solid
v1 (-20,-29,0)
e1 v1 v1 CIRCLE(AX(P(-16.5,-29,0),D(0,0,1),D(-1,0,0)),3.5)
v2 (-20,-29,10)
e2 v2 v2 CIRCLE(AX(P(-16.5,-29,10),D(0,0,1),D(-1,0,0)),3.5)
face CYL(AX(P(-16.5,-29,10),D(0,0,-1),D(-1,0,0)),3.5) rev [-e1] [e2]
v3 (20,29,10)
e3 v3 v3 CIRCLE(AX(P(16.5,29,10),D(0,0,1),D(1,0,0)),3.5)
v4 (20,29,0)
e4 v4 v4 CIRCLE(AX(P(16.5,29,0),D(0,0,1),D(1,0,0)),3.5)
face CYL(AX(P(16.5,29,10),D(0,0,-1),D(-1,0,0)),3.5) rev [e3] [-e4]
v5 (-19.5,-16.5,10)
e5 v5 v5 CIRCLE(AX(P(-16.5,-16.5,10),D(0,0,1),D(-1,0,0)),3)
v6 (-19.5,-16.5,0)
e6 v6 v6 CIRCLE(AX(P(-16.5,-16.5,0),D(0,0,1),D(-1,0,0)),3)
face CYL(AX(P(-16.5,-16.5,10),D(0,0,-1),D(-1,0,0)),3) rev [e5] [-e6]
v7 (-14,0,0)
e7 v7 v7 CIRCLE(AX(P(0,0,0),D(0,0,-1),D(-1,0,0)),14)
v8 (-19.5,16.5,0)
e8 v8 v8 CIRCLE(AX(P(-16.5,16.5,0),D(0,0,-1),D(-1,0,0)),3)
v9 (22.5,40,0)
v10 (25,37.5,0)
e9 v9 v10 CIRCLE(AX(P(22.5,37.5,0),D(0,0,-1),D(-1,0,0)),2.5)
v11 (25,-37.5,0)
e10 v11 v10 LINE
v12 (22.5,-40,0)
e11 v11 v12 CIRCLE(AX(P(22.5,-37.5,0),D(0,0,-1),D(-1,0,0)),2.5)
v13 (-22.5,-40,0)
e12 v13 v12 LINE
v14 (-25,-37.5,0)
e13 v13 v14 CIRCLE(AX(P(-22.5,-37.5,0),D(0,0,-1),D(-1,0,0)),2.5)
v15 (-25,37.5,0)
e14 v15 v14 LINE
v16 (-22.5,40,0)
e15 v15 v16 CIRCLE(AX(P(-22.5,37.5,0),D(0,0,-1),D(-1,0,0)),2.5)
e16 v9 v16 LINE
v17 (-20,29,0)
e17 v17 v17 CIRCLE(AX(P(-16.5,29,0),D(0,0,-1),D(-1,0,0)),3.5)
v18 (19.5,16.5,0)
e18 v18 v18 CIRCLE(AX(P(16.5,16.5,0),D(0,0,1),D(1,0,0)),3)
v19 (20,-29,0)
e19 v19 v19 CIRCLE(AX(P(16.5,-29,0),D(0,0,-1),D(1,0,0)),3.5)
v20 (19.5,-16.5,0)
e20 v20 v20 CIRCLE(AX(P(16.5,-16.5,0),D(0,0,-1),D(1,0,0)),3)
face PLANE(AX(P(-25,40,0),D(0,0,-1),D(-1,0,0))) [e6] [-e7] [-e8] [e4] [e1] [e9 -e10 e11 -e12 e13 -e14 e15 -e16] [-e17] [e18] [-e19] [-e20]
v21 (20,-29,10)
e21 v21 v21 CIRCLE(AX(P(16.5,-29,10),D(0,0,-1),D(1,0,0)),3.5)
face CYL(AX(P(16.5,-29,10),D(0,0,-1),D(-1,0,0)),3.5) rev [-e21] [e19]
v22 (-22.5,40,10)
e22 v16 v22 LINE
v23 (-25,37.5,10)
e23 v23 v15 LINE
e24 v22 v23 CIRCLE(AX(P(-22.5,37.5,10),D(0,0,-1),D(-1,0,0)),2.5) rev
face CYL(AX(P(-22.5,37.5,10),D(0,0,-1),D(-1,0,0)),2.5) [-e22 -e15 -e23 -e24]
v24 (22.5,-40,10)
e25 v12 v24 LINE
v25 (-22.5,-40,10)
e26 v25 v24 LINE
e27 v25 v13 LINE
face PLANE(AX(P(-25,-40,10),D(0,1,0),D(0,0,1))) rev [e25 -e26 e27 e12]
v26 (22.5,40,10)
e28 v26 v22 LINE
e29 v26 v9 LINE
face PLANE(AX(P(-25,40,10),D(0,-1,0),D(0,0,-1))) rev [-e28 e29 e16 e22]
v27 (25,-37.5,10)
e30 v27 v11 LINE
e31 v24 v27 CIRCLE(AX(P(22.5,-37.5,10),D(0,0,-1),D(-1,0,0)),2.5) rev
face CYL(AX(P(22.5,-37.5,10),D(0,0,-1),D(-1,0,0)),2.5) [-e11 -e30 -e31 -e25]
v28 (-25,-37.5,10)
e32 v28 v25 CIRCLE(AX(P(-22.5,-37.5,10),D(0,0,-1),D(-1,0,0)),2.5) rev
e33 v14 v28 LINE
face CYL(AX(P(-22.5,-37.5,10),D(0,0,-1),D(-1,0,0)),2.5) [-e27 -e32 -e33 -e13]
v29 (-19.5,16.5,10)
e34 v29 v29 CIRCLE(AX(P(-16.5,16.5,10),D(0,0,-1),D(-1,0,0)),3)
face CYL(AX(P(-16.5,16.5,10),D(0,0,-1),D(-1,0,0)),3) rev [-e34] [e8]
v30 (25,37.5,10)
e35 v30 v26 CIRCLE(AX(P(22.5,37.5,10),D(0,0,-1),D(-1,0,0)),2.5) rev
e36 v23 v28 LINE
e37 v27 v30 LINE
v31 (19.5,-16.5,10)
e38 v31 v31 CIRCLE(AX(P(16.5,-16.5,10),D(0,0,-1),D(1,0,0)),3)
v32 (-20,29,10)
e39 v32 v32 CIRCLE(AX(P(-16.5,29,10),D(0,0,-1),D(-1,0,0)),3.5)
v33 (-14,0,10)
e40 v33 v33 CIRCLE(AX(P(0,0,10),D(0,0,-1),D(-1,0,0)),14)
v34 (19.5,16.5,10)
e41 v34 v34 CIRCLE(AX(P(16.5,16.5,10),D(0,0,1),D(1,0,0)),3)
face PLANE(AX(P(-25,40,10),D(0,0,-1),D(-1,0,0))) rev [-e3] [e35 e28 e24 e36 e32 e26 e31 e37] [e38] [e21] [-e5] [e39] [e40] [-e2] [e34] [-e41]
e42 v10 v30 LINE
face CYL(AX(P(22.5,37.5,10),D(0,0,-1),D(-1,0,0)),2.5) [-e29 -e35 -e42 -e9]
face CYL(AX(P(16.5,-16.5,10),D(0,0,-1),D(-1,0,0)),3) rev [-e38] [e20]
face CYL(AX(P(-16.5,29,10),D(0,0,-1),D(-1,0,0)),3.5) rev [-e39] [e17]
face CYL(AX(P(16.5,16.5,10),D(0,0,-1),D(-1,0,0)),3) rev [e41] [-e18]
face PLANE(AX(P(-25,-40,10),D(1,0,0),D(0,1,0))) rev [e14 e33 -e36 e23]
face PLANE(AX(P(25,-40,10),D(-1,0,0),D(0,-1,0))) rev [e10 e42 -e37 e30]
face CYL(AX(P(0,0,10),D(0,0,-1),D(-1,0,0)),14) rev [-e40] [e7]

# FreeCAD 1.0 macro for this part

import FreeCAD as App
import Part
import Sketcher
from FreeCAD import Vector


def edges_at(feature, points):
    """Names of the edges that pass closest to the given points."""
    edges = feature.Shape.Edges
    near = lambda p: min(range(len(edges)), key=lambda i: edges[i].distToShape(Part.Vertex(*p))[0])
    return sorted({f"Edge{near(p) + 1}" for p in points})

doc = App.newDocument("Part")
body = doc.addObject("PartDesign::Body", "Body")

# Sketch on XY plane
sketch1 = doc.addObject("Sketcher::SketchObject", "Sketch")
body.addObject(sketch1)
sketch1.AttachmentSupport = (doc.XY_Plane, [""])
sketch1.MapMode = "FlatFace"
sketch1.addGeometry([
    Part.LineSegment(Vector(-25, 40, 0), Vector(-25, -40, 0)),
    Part.LineSegment(Vector(-25, -40, 0), Vector(25, -40, 0)),
    Part.LineSegment(Vector(25, -40, 0), Vector(25, 40, 0)),
    Part.LineSegment(Vector(25, 40, 0), Vector(-25, 40, 0)),
], False)
sketch1.addConstraint([
    Sketcher.Constraint("Coincident", 0, 2, 1, 1),
    Sketcher.Constraint("Coincident", 1, 2, 2, 1),
    Sketcher.Constraint("Coincident", 2, 2, 3, 1),
    Sketcher.Constraint("Coincident", 3, 2, 0, 1),
    Sketcher.Constraint("Vertical", 0),
    Sketcher.Constraint("Horizontal", 1),
    Sketcher.Constraint("Vertical", 2),
    Sketcher.Constraint("Horizontal", 3),
    Sketcher.Constraint("Symmetric", 0, 2, 2, 2, -1, 1),
    Sketcher.Constraint("DistanceX", 1, 1, 1, 2, 50.0),
    Sketcher.Constraint("DistanceY", 0, 2, 0, 1, 80.0),
])
pad1 = doc.addObject("PartDesign::Pad", "Pad")
body.addObject(pad1)
pad1.Profile = sketch1
pad1.Length = 10

# Sketch on XY plane
sketch2 = doc.addObject("Sketcher::SketchObject", "Sketch001")
body.addObject(sketch2)
sketch2.AttachmentSupport = (doc.XY_Plane, [""])
sketch2.MapMode = "FlatFace"
sketch2.addGeometry([
    Part.Circle(Vector(-16.5, 29, 0), Vector(0, 0, 1), 3.5),
    Part.Circle(Vector(-16.5, 16.5, 0), Vector(0, 0, 1), 3),
], False)
sketch2.addConstraint([
    Sketcher.Constraint("Vertical", 0, 3, 1, 3),
    Sketcher.Constraint("Diameter", 0, 7.0),
    Sketcher.Constraint("Diameter", 1, 6.0),
    Sketcher.Constraint("DistanceY", -1, 1, 0, 3, 29.0),
    Sketcher.Constraint("DistanceX", 0, 3, -1, 1, 16.5),
    Sketcher.Constraint("DistanceY", -1, 1, 1, 3, 16.5),
])
pocket1 = doc.addObject("PartDesign::Pocket", "Pocket")
body.addObject(pocket1)
pocket1.Profile = sketch2
pocket1.Type = "ThroughAll"
pocket1.Reversed = True
doc.recompute()

mirrored = doc.addObject("PartDesign::Mirrored", "Mirrored")
body.addObject(mirrored)
mirrored.Originals = [pocket1]
mirrored.MirrorPlane = (doc.YZ_Plane, [""])
body.Tip = mirrored
doc.recompute()

mirrored2 = doc.addObject("PartDesign::Mirrored", "Mirrored001")
body.addObject(mirrored2)
mirrored2.Originals = [pocket1]
mirrored2.MirrorPlane = (doc.XZ_Plane, [""])
body.Tip = mirrored2

# Sketch on XY plane
sketch3 = doc.addObject("Sketcher::SketchObject", "Sketch002")
body.addObject(sketch3)
sketch3.AttachmentSupport = (doc.XY_Plane, [""])
sketch3.MapMode = "FlatFace"
sketch3.addGeometry([
    Part.Circle(Vector(16.5, -29, 0), Vector(0, 0, 1), 3.5),
    Part.Circle(Vector(16.5, -16.5, 0), Vector(0, 0, 1), 3),
], False)
sketch3.addConstraint([
    Sketcher.Constraint("Vertical", 0, 3, 1, 3),
    Sketcher.Constraint("Diameter", 0, 7.0),
    Sketcher.Constraint("Diameter", 1, 6.0),
    Sketcher.Constraint("DistanceY", 0, 3, -1, 1, 29.0),
    Sketcher.Constraint("DistanceX", -1, 1, 0, 3, 16.5),
    Sketcher.Constraint("DistanceY", 1, 3, -1, 1, 16.5),
])
pocket2 = doc.addObject("PartDesign::Pocket", "Pocket001")
body.addObject(pocket2)
pocket2.Profile = sketch3
pocket2.Type = "ThroughAll"
pocket2.Reversed = True

# Sketch on XY plane
sketch4 = doc.addObject("Sketcher::SketchObject", "Sketch003")
body.addObject(sketch4)
sketch4.AttachmentSupport = (doc.XY_Plane, [""])
sketch4.MapMode = "FlatFace"
sketch4.addGeometry(Part.Circle(Vector(0, 0, 0), Vector(0, 0, 1), 14), False)
sketch4.addConstraint([
    Sketcher.Constraint("Coincident", 0, 3, -1, 1),
    Sketcher.Constraint("Diameter", 0, 28.0),
])
pocket3 = doc.addObject("PartDesign::Pocket", "Pocket002")
body.addObject(pocket3)
pocket3.Profile = sketch4
pocket3.Type = "ThroughAll"
pocket3.Reversed = True
doc.recompute()

fillet = doc.addObject("PartDesign::Fillet", "Fillet")
body.addObject(fillet)
fillet.Base = (pocket3, edges_at(pocket3, [
    (-25, 40, 5),
    (25, 40, 5),
    (25, -40, 5),
    (-25, -40, 5),
]))
fillet.Radius = 2.5

doc.recompute()
